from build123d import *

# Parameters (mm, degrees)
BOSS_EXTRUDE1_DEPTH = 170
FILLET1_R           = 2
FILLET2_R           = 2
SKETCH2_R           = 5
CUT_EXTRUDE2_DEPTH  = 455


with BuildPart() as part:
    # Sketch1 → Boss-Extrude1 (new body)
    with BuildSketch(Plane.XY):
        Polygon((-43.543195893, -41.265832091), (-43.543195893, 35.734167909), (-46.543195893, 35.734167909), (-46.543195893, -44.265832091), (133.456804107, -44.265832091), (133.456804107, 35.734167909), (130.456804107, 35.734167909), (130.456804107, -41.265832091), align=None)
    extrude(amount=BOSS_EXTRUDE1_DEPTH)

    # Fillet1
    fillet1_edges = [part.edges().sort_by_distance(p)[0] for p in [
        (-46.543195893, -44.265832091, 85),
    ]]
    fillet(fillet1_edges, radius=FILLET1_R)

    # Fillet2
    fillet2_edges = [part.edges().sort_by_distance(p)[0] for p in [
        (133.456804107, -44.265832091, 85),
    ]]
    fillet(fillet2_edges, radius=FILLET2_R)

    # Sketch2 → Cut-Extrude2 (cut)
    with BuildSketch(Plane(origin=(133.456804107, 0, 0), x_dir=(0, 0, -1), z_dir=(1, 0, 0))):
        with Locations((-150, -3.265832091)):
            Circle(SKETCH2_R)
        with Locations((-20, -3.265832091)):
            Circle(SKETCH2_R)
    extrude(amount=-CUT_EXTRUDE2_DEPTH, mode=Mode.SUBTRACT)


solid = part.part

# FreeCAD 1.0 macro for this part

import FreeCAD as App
import Part
import Sketcher
from FreeCAD import Vector
Q = App.Units.Quantity


def edges_at(feature, points):
    """Names of the edges that pass closest to the given points."""
    edges = feature.Shape.Edges
    near = lambda p: min(range(len(edges)), key=lambda i: edges[i].distToShape(Part.Vertex(*p))[0])
    return sorted({f"Edge{near(p) + 1}" for p in points})


def add_polygon(sketch, points):
    """Adds a closed chain of lines whose ends are joined by coincident constraints."""
    first, n = sketch.GeometryCount, len(points)
    for a, b in zip(points, points[1:] + points[:1]):
        sketch.addGeometry(Part.LineSegment(App.Vector(*a, 0), App.Vector(*b, 0)), False)
    for i in range(n):
        sketch.addConstraint(Sketcher.Constraint("Coincident", first + i, 2, first + (i + 1) % n, 1))

doc = App.newDocument("Part")
body = doc.addObject("PartDesign::Body", "Body")

sketch1 = doc.addObject("Sketcher::SketchObject", "Sketch")
body.addObject(sketch1)
sketch1.AttachmentSupport = (doc.XY_Plane, [""])
sketch1.MapMode = "FlatFace"
add_polygon(sketch1, [(-43.5, -41.3), (-43.5, 35.7), (-46.5, 35.7), (-46.5, -44.3), (133.5, -44.3), (133.5, 35.7), (130.5, 35.7), (130.5, -41.3)])
sketch1.addConstraint(Sketcher.Constraint("Vertical", 0))
sketch1.addConstraint(Sketcher.Constraint("Horizontal", 1))
sketch1.addConstraint(Sketcher.Constraint("Vertical", 2))
sketch1.addConstraint(Sketcher.Constraint("Horizontal", 3))
sketch1.addConstraint(Sketcher.Constraint("Vertical", 4))
sketch1.addConstraint(Sketcher.Constraint("Horizontal", 5))
sketch1.addConstraint(Sketcher.Constraint("Vertical", 6))
sketch1.addConstraint(Sketcher.Constraint("Horizontal", 7))
sketch1.addConstraint(Sketcher.Constraint("Horizontal", 1, 2, 4, 2))
sketch1.addConstraint(Sketcher.Constraint("Equal", 1, 5))
sketch1.addConstraint(Sketcher.Constraint("DistanceX", 1, 2, 1, 1, Q("3 mm")))
sketch1.addConstraint(Sketcher.Constraint("DistanceX", 3, 1, 3, 2, Q("180 mm")))
sketch1.addConstraint(Sketcher.Constraint("DistanceY", 0, 1, 0, 2, Q("77 mm")))
sketch1.addConstraint(Sketcher.Constraint("DistanceY", 2, 2, 2, 1, Q("80 mm")))
sketch1.addConstraint(Sketcher.Constraint("DistanceX", 0, 2, -1, 1, Q("43.543196 mm")))
sketch1.addConstraint(Sketcher.Constraint("DistanceY", -1, 1, 0, 2, Q("35.734168 mm")))
pad1 = doc.addObject("PartDesign::Pad", "Pad")
body.addObject(pad1)
pad1.Profile = sketch1
pad1.Length = 170
doc.recompute()

fillet = doc.addObject("PartDesign::Fillet", "Fillet")
body.addObject(fillet)
fillet.Base = (pad1, edges_at(pad1, [(-46.543, -44.266, 85)]))
fillet.Radius = 2
doc.recompute()

fillet2 = doc.addObject("PartDesign::Fillet", "Fillet001")
body.addObject(fillet2)
fillet2.Base = (fillet, edges_at(fillet, [(133.457, -44.266, 85)]))
fillet2.Radius = 2

sketch2 = doc.addObject("Sketcher::SketchObject", "Sketch001")
body.addObject(sketch2)
sketch2.AttachmentSupport = (doc.YZ_Plane, [""])
sketch2.MapMode = "FlatFace"
sketch2.AttachmentOffset = App.Placement(Vector(0, 0, 133.456804), App.Rotation())
sketch2.addGeometry(Part.Circle(Vector(-3, 150, 0), Vector(0, 0, 1), 5), False)
sketch2.addGeometry(Part.Circle(Vector(-3, 20, 0), Vector(0, 0, 1), 5), False)
sketch2.addConstraint(Sketcher.Constraint("Equal", 0, 1))
sketch2.addConstraint(Sketcher.Constraint("Vertical", 0, 3, 1, 3))
sketch2.addConstraint(Sketcher.Constraint("Diameter", 0, Q("10 mm")))
sketch2.addConstraint(Sketcher.Constraint("DistanceY", -1, 1, 0, 3, Q("150 mm")))
sketch2.addConstraint(Sketcher.Constraint("DistanceY", -1, 1, 1, 3, Q("20 mm")))
sketch2.addConstraint(Sketcher.Constraint("DistanceX", 0, 3, -1, 1, Q("3.265832 mm")))
pocket1 = doc.addObject("PartDesign::Pocket", "Pocket")
body.addObject(pocket1)
pocket1.Profile = sketch2
pocket1.Length = 455

doc.recompute()
